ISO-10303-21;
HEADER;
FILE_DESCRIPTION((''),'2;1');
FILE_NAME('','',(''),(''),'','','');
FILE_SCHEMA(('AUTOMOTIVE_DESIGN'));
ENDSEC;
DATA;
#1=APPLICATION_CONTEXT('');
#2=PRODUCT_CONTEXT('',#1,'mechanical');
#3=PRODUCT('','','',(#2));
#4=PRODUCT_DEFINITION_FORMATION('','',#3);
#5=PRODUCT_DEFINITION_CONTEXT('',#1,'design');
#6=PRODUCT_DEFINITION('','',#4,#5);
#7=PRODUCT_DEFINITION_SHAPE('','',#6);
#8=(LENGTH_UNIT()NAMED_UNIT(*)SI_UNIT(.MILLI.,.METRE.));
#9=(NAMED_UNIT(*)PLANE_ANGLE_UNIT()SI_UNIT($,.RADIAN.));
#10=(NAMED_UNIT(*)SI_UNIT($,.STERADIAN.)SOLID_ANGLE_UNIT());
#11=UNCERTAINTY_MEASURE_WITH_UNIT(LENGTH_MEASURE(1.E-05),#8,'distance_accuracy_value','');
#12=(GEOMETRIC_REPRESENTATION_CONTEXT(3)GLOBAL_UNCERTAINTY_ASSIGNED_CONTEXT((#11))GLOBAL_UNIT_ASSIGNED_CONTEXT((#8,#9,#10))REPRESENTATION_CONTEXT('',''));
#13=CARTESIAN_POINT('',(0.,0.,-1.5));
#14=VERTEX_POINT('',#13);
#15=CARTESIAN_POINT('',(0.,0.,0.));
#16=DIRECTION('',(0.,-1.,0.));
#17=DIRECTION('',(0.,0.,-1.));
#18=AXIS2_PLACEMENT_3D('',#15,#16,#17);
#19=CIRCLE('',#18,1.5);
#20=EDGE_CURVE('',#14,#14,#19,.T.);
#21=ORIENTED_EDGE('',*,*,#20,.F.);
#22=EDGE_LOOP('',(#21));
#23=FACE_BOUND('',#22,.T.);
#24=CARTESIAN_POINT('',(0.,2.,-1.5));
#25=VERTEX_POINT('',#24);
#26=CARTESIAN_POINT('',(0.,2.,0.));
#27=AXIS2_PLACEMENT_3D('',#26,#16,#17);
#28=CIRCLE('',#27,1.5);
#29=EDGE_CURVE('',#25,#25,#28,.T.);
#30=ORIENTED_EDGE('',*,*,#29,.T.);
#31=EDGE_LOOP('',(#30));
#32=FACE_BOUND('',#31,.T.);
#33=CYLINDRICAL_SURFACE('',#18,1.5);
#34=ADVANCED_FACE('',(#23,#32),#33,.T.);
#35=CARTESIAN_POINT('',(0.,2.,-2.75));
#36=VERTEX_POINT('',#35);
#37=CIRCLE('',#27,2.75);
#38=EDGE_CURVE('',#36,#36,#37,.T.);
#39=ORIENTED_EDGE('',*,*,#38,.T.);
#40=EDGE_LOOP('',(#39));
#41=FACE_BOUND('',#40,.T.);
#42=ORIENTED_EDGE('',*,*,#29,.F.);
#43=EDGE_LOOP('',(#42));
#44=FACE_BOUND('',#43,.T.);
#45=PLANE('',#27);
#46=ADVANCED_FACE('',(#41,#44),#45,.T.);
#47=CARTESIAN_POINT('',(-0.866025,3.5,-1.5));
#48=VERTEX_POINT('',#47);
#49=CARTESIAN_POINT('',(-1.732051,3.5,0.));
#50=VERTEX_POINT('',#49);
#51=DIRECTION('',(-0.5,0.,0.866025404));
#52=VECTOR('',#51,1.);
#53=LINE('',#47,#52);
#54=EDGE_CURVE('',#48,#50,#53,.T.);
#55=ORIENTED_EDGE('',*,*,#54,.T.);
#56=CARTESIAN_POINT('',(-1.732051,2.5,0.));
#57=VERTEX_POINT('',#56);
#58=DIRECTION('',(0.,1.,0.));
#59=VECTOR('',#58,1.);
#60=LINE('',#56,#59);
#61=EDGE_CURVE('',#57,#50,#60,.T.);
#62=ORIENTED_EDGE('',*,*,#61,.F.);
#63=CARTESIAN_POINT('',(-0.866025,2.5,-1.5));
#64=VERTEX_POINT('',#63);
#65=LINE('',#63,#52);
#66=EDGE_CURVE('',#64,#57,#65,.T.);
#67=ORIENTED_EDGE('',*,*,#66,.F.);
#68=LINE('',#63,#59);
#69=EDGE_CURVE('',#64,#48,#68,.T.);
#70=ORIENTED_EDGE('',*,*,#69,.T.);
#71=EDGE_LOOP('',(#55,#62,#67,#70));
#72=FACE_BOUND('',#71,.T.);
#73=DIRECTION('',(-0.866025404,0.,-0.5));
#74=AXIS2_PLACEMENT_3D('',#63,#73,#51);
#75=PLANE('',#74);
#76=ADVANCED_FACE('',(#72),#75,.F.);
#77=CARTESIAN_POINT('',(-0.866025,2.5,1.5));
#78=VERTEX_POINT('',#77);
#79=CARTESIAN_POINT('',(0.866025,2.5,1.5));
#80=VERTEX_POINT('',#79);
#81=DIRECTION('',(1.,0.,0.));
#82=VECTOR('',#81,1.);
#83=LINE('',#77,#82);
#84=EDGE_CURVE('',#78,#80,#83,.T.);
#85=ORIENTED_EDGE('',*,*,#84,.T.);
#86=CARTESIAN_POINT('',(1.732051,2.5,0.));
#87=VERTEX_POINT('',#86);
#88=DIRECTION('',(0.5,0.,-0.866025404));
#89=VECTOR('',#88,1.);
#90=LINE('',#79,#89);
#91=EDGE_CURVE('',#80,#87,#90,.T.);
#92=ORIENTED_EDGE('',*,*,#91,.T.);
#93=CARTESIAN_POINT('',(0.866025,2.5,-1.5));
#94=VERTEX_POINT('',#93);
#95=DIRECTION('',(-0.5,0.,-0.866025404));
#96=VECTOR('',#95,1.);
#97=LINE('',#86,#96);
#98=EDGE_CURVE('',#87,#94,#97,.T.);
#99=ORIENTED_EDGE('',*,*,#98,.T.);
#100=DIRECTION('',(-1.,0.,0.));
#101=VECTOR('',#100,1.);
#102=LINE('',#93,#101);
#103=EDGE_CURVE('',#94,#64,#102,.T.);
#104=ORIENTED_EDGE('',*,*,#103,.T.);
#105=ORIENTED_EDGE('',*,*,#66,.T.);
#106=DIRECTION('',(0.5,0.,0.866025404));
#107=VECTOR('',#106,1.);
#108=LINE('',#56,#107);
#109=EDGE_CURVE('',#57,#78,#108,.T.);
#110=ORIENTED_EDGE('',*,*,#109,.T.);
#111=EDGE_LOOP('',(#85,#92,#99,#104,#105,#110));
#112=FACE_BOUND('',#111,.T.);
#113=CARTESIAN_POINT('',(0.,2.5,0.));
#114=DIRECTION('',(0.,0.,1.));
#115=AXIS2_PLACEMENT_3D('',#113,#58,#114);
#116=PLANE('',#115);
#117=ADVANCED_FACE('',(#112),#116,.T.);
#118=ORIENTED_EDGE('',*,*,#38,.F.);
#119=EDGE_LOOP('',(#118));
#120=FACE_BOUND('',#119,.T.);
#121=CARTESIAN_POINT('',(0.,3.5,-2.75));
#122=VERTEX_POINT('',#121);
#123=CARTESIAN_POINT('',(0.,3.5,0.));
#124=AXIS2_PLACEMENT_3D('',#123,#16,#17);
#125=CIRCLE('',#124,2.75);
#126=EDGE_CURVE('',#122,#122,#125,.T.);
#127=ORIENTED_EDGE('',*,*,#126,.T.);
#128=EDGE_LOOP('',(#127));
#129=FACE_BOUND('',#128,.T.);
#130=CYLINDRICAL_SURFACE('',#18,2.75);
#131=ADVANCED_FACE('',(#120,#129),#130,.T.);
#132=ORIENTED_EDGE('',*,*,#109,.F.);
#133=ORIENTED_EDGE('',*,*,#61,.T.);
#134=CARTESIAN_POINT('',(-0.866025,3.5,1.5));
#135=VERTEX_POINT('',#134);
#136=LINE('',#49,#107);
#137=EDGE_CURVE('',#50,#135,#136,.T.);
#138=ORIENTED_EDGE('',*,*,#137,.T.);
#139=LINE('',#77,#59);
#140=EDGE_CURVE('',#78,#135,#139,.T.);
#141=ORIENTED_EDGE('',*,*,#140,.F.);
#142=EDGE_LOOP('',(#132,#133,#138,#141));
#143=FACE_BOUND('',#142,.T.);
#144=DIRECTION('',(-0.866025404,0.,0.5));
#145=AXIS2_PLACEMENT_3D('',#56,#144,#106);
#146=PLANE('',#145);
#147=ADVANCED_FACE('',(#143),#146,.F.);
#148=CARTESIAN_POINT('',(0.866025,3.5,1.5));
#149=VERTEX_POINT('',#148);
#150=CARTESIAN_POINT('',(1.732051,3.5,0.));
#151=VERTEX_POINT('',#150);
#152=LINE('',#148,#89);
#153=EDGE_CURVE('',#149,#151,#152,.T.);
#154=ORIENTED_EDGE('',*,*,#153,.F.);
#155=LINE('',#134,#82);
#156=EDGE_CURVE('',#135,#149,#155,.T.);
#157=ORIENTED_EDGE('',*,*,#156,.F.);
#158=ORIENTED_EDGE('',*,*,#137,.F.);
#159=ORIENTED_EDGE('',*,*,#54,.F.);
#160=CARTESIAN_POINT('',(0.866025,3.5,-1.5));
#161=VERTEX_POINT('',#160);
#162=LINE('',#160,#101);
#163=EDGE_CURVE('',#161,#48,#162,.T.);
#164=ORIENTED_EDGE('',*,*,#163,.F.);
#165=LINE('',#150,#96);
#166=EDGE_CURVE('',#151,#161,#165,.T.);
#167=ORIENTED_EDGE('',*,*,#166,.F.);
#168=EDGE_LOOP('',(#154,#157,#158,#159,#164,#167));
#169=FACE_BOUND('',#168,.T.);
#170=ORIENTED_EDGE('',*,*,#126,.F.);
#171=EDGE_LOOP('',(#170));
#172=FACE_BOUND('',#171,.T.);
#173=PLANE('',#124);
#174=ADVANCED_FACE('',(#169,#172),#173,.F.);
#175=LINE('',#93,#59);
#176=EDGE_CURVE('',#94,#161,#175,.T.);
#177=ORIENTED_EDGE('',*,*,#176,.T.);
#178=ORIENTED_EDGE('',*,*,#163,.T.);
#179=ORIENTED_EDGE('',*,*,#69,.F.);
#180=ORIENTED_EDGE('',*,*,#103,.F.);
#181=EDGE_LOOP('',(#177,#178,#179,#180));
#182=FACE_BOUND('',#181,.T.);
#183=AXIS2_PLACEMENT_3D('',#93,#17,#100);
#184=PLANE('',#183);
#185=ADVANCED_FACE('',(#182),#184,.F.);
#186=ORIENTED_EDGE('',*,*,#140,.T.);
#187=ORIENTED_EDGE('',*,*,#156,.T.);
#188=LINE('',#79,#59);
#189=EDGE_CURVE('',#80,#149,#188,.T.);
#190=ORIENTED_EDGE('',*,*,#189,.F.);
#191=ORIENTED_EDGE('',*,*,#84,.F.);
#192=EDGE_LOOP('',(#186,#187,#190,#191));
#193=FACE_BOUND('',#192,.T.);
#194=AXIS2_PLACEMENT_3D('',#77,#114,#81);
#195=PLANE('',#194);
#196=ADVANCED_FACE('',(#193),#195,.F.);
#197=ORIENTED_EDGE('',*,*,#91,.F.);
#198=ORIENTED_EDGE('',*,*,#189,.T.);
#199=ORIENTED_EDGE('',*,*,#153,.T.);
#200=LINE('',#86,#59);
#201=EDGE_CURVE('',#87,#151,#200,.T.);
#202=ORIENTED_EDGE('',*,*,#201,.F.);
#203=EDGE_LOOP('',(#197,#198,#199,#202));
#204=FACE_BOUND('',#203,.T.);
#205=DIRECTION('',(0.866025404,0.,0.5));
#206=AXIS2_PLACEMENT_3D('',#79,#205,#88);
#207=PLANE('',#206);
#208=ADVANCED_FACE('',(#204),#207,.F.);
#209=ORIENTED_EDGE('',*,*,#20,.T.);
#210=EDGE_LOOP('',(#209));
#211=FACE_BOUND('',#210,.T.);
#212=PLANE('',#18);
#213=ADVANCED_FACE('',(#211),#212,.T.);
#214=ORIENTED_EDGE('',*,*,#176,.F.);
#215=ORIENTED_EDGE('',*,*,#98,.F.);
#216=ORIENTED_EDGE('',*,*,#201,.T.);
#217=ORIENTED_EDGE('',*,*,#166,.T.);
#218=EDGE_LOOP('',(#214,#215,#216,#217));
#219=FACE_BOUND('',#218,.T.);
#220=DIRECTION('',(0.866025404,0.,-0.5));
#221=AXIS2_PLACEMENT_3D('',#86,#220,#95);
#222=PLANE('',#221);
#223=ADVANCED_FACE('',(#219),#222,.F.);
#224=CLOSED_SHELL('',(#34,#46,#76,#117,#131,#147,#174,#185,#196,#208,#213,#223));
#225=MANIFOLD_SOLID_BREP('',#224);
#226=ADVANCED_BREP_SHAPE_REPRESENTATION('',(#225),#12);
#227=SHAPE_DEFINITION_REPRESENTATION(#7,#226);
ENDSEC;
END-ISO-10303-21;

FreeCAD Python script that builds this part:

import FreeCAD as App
import Part
import Sketcher
from FreeCAD import Vector
Q = App.Units.Quantity


def add_polygon(sketch, points):
    """Adds a closed chain of lines whose ends are joined by coincident constraints."""
    first, n = sketch.GeometryCount, len(points)
    for a, b in zip(points, points[1:] + points[:1]):
        sketch.addGeometry(Part.LineSegment(App.Vector(*a, 0), App.Vector(*b, 0)), False)
    for i in range(n):
        sketch.addConstraint(Sketcher.Constraint("Coincident", first + i, 2, first + (i + 1) % n, 1))

doc = App.newDocument("Part")
body = doc.addObject("PartDesign::Body", "Body")

# Sketch on XY plane
sketch1 = doc.addObject("Sketcher::SketchObject", "Sketch")
body.addObject(sketch1)
sketch1.AttachmentSupport = (doc.XY_Plane, [""])
sketch1.MapMode = "FlatFace"
add_polygon(sketch1, [(0, 3.5), (0, 0), (1.5, 0), (1.5, 2), (2.8, 2), (2.8, 3.5)])  # lines 0-5
sketch1.addConstraint(Sketcher.Constraint("Vertical", 0))
sketch1.addConstraint(Sketcher.Constraint("Horizontal", 1))
sketch1.addConstraint(Sketcher.Constraint("Vertical", 2))
sketch1.addConstraint(Sketcher.Constraint("Horizontal", 3))
sketch1.addConstraint(Sketcher.Constraint("Vertical", 4))
sketch1.addConstraint(Sketcher.Constraint("Horizontal", 5))
sketch1.addConstraint(Sketcher.Constraint("Coincident", 0, 2, -1, 1))
sketch1.addConstraint(Sketcher.Constraint("Equal", 1, 4))
sketch1.addConstraint(Sketcher.Constraint("DistanceY", 2, 1, 2, 2, Q("2 mm")))
sketch1.addConstraint(Sketcher.Constraint("DistanceX", 1, 1, 1, 2, Q("1.5 mm")))
sketch1.addConstraint(Sketcher.Constraint("DistanceX", 3, 1, 3, 2, Q("1.25 mm")))
revolution = doc.addObject("PartDesign::Revolution", "Revolution")
body.addObject(revolution)
revolution.Profile = sketch1
revolution.ReferenceAxis = (sketch1, ["V_Axis"])
revolution.Angle = 360

# Sketch on XZ plane
sketch2 = doc.addObject("Sketcher::SketchObject", "Sketch001")
body.addObject(sketch2)
sketch2.AttachmentSupport = (doc.XZ_Plane, [""])
sketch2.MapMode = "FlatFace"
sketch2.AttachmentOffset = App.Placement(Vector(0, 0, -3.5), App.Rotation())
add_polygon(sketch2, [(-1.7, 0), (-0.9, 1.5), (0.9, 1.5), (1.7, 0), (0.9, -1.5), (-0.9, -1.5)])  # lines 0-5
sketch2.addConstraint(Sketcher.Constraint("Horizontal", 1))
sketch2.addConstraint(Sketcher.Constraint("Horizontal", 4))
sketch2.addConstraint(Sketcher.Constraint("Symmetric", 0, 2, 3, 2, -1, 1))
sketch2.addConstraint(Sketcher.Constraint("Symmetric", 2, 2, 5, 2, -1, 1))
sketch2.addConstraint(Sketcher.Constraint("PointOnObject", 2, 2, -1))
sketch2.addConstraint(Sketcher.Constraint("Parallel", 2, 5))
sketch2.addConstraint(Sketcher.Constraint("Vertical", 1, 2, 3, 2))
sketch2.addConstraint(Sketcher.Constraint("Angle", 0, Q("60 deg")))
sketch2.addConstraint(Sketcher.Constraint("DistanceY", 3, 2, 1, 2, Q("3 mm")))
sketch2.addConstraint(Sketcher.Constraint("DistanceX", 1, 1, 1, 2, Q("1.732051 mm")))
pocket1 = doc.addObject("PartDesign::Pocket", "Pocket")
body.addObject(pocket1)
pocket1.Profile = sketch2
pocket1.Length = 1
pocket1.Reversed = True

doc.recompute()
